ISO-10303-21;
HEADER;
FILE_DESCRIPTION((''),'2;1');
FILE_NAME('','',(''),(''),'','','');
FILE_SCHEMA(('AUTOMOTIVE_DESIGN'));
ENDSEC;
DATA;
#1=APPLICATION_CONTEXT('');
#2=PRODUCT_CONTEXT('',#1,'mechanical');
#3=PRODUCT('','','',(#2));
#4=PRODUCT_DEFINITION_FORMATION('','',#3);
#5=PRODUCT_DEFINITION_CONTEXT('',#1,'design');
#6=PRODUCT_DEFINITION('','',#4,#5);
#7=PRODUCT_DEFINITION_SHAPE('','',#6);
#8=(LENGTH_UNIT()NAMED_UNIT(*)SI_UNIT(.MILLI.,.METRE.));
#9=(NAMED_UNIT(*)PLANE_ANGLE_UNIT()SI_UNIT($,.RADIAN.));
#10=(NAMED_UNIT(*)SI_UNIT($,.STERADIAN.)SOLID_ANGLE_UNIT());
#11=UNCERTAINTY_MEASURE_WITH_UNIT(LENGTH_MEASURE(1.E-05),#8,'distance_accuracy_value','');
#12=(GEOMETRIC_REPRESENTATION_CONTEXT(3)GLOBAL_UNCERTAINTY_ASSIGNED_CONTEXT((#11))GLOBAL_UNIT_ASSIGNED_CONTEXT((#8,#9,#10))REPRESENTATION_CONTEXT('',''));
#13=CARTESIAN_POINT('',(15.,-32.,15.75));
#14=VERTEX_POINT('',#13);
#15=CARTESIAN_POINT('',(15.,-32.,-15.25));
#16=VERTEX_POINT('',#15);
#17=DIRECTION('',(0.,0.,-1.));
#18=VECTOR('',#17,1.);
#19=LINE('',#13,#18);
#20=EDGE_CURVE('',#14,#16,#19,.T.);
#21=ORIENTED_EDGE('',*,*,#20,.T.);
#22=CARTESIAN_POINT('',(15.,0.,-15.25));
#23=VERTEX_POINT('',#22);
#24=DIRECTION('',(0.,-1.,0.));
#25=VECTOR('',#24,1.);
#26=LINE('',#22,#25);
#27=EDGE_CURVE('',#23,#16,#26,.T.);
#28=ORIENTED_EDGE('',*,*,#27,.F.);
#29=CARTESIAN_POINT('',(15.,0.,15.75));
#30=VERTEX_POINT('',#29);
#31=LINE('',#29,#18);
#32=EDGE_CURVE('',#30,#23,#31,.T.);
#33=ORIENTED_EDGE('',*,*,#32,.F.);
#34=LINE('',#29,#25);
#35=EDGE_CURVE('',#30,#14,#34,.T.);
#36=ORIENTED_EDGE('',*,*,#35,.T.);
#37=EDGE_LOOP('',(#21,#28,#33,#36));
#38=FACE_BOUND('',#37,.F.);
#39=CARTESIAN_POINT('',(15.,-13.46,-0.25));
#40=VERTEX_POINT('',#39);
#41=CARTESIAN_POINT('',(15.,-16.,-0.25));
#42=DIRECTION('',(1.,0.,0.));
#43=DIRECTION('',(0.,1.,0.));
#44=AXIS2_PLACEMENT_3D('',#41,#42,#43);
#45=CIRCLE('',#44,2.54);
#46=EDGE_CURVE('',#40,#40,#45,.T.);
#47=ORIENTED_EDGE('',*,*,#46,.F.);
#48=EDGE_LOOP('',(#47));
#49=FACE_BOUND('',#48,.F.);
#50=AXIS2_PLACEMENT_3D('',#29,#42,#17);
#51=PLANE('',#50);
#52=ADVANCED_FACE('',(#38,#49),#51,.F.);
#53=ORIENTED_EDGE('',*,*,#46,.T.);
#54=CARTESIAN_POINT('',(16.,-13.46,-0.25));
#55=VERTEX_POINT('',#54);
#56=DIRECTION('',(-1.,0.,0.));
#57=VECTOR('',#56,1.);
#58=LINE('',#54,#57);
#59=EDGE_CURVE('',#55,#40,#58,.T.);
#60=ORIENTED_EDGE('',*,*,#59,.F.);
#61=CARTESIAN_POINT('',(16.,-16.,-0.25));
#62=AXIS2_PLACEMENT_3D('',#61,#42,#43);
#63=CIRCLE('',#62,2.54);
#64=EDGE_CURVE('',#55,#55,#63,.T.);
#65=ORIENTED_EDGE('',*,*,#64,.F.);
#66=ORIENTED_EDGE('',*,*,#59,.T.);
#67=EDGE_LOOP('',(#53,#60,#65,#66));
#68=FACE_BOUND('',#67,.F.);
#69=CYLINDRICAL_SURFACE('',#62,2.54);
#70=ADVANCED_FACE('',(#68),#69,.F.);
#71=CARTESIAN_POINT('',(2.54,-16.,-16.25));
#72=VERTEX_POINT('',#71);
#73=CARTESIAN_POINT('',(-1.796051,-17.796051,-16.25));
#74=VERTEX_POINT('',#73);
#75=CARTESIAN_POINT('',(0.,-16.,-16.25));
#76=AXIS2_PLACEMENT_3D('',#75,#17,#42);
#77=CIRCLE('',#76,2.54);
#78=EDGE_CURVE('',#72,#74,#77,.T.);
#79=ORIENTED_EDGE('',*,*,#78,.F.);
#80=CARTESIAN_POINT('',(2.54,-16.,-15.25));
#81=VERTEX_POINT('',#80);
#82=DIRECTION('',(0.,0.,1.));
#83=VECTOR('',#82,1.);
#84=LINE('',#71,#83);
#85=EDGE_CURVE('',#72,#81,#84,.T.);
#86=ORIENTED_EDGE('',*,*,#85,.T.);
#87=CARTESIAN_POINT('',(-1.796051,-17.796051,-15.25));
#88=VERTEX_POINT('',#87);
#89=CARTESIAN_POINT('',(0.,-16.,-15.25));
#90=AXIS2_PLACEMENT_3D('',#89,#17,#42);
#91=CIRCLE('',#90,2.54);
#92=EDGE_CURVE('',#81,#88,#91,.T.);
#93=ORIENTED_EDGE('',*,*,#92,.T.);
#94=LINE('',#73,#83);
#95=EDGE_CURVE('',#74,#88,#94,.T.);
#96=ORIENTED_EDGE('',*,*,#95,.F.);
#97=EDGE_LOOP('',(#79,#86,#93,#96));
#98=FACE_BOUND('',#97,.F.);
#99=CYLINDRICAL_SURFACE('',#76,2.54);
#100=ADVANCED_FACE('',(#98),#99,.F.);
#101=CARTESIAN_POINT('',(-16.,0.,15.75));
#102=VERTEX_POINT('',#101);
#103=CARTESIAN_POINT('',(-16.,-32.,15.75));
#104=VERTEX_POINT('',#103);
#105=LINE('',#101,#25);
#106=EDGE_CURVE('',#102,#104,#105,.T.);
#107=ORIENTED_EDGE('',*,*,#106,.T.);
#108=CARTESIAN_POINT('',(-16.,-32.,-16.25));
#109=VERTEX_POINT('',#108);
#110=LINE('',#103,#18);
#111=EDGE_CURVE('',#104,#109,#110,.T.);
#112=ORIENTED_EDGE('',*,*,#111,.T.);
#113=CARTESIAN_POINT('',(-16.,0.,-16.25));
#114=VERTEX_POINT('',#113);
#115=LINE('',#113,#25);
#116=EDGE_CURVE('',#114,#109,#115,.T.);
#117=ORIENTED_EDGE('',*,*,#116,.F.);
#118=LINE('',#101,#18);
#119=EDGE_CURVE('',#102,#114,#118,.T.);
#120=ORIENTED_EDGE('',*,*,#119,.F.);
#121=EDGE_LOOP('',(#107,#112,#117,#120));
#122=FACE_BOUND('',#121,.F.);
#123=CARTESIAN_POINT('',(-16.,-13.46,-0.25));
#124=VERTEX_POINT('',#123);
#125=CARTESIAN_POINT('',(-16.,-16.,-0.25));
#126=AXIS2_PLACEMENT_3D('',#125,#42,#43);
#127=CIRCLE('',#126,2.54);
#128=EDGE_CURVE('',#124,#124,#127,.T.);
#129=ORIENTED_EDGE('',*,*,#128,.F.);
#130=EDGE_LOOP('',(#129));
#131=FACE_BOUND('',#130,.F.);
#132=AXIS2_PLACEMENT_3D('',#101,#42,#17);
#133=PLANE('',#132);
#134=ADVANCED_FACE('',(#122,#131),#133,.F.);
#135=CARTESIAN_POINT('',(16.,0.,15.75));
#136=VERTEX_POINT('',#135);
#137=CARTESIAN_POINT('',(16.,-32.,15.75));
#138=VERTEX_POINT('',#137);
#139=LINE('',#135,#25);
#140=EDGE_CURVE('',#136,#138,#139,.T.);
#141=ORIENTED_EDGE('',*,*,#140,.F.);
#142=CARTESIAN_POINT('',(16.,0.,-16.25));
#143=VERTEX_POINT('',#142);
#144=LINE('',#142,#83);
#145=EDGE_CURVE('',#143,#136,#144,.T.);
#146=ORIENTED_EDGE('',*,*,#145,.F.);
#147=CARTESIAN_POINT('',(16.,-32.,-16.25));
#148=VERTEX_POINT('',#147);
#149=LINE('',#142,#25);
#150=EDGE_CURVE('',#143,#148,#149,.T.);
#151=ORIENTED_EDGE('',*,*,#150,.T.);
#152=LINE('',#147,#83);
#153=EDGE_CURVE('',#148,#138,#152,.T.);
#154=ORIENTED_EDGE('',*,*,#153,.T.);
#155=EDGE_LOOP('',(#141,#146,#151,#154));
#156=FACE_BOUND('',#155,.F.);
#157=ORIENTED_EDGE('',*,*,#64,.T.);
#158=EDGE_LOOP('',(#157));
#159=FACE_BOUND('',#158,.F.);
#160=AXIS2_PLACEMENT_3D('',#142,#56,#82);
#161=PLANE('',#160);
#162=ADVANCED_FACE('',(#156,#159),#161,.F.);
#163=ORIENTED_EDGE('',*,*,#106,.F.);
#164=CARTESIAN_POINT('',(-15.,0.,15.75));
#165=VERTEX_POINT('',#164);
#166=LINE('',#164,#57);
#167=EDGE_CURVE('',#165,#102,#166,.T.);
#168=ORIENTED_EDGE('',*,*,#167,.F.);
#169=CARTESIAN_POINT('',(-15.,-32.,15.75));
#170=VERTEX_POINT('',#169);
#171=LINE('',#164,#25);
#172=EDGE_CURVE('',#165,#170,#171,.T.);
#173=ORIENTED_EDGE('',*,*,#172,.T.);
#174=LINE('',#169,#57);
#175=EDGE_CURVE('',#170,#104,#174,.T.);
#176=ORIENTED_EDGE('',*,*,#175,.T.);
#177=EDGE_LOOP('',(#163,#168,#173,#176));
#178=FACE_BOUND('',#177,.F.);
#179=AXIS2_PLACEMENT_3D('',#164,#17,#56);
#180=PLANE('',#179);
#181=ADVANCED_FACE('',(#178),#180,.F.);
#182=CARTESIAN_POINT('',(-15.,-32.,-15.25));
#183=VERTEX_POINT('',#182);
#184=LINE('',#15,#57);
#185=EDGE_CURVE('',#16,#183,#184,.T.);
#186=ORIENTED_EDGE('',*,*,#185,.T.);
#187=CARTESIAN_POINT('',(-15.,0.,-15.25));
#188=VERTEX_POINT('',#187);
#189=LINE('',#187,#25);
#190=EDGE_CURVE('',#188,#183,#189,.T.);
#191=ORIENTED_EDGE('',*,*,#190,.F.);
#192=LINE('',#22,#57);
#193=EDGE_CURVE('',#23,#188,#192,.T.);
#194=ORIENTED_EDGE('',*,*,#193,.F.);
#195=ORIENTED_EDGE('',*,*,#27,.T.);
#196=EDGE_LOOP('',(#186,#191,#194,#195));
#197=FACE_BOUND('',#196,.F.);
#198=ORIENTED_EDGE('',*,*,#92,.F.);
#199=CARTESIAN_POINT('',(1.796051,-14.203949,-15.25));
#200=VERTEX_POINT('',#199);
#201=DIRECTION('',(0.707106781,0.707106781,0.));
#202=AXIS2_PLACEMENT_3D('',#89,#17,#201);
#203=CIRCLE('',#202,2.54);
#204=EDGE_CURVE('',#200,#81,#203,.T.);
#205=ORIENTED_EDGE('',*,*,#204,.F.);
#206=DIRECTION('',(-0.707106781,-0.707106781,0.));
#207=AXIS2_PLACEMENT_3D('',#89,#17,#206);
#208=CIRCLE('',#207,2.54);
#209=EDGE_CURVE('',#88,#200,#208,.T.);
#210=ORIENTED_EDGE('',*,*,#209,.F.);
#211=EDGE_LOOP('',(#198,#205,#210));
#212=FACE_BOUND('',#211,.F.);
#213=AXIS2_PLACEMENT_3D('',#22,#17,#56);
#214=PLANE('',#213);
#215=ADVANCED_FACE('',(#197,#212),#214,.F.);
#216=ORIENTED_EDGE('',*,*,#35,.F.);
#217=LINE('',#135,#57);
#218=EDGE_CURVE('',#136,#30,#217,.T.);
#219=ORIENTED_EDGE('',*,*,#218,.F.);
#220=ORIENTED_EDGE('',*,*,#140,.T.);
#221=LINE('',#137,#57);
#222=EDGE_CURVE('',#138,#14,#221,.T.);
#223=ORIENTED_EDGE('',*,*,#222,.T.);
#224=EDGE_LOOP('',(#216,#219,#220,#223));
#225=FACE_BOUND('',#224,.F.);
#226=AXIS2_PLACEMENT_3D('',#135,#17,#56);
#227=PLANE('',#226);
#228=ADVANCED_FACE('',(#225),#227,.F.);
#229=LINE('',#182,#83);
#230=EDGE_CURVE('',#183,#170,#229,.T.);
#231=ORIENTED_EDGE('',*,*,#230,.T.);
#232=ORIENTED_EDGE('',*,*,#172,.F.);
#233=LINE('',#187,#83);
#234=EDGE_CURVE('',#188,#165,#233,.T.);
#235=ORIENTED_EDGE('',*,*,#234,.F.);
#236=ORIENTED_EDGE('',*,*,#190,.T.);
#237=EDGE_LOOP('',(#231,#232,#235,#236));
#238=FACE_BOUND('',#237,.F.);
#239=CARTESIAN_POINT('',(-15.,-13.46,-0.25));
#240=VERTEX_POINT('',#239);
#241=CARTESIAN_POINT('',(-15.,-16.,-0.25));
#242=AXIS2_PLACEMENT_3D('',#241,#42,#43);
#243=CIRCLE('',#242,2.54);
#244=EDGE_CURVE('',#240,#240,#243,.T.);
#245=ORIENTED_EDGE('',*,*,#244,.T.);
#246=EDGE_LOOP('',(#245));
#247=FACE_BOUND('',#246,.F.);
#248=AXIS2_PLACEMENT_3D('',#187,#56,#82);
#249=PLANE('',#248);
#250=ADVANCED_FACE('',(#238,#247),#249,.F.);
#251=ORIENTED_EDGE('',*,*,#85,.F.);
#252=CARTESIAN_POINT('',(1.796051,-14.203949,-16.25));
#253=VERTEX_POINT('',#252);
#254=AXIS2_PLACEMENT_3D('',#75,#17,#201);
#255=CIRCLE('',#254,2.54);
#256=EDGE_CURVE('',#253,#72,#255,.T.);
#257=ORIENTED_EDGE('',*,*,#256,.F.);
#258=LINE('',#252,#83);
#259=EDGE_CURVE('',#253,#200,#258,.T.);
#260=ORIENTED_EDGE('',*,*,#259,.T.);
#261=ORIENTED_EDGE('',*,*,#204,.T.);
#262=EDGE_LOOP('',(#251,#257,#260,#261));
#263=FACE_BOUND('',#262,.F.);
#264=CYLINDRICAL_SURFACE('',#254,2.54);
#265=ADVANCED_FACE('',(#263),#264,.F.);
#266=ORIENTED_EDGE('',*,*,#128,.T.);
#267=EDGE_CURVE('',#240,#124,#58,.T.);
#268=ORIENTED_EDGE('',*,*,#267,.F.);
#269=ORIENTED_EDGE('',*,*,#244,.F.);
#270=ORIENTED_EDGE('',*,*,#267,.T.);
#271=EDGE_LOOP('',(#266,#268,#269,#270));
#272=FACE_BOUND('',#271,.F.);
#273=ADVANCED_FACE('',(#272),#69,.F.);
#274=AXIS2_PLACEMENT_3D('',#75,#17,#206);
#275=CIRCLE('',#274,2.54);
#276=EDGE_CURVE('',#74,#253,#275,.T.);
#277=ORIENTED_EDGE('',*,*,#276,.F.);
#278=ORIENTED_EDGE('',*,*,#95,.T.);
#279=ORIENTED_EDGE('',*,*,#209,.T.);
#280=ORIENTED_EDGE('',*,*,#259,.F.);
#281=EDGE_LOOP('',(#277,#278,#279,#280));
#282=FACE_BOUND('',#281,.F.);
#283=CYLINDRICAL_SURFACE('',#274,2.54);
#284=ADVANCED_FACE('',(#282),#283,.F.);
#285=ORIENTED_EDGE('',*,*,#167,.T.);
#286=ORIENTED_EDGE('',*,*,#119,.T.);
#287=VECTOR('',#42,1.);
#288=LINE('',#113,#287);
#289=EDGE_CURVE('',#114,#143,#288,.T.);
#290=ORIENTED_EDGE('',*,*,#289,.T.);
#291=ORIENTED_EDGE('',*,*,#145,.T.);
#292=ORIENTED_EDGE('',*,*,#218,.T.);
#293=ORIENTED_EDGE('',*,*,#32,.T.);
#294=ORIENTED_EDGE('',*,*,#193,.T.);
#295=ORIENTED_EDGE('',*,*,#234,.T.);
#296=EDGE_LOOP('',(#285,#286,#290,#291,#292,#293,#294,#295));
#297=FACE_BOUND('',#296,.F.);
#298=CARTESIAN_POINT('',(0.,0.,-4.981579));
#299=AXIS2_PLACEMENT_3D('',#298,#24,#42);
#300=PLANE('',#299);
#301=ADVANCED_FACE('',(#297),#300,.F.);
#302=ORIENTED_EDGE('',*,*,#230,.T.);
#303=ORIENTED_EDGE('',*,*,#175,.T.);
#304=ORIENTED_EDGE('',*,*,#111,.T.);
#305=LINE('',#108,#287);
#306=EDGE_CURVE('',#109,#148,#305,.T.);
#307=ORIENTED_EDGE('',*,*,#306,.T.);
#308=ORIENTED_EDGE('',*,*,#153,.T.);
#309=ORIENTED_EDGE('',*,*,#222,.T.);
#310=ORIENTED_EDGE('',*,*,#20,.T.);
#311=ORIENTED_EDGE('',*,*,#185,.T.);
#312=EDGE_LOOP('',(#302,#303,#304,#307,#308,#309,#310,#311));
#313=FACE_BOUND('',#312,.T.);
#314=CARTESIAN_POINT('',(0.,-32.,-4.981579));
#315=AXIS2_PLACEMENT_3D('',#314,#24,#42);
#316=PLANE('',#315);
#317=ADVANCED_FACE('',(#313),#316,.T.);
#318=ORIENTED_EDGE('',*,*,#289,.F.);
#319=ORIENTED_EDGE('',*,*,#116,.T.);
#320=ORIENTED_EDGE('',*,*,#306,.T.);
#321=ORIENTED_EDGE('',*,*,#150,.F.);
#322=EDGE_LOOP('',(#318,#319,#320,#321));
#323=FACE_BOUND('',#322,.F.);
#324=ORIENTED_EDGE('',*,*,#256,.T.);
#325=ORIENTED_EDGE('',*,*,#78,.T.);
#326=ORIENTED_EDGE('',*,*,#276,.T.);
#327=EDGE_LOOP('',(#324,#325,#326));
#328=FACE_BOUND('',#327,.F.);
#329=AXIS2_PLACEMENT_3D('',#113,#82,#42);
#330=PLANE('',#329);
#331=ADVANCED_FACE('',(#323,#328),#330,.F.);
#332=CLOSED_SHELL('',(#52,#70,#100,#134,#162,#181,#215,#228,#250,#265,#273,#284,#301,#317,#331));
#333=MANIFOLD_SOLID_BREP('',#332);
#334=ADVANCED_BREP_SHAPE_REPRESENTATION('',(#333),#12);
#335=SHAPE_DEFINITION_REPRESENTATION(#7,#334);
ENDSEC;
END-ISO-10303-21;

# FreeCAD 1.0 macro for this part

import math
import FreeCAD as App
import Part
import Sketcher

doc = App.newDocument("Part")
body = doc.addObject("PartDesign::Body", "Body")

# Sketch on XZ plane
sketch1 = body.newObject("Sketcher::SketchObject", "Sketch")
sketch1.AttachmentSupport = (doc.getObject("XZ_Plane"), [""])
sketch1.MapMode = "FlatFace"
sketch1.addGeometry([
    Part.LineSegment(App.Vector(-15, 15.8, 0), App.Vector(-16, 15.8, 0)),  # 0
    Part.LineSegment(App.Vector(-16, 15.8, 0), App.Vector(-16, -16.2, 0)),  # 1
    Part.LineSegment(App.Vector(-16, -16.2, 0), App.Vector(16, -16.2, 0)),  # 2
    Part.LineSegment(App.Vector(16, -16.2, 0), App.Vector(16, 15.8, 0)),  # 3
    Part.LineSegment(App.Vector(16, 15.8, 0), App.Vector(15, 15.8, 0)),  # 4
    Part.LineSegment(App.Vector(15, 15.8, 0), App.Vector(15, -15.2, 0)),  # 5
    Part.LineSegment(App.Vector(15, -15.2, 0), App.Vector(-15, -15.2, 0)),  # 6
    Part.LineSegment(App.Vector(-15, -15.2, 0), App.Vector(-15, 15.8, 0)),  # 7
], False)
sketch1.addConstraint([
    Sketcher.Constraint("Coincident", 0, 2, 1, 1),
    Sketcher.Constraint("Coincident", 1, 2, 2, 1),
    Sketcher.Constraint("Coincident", 2, 2, 3, 1),
    Sketcher.Constraint("Coincident", 3, 2, 4, 1),
    Sketcher.Constraint("Coincident", 4, 2, 5, 1),
    Sketcher.Constraint("Coincident", 5, 2, 6, 1),
    Sketcher.Constraint("Coincident", 6, 2, 7, 1),
    Sketcher.Constraint("Coincident", 7, 2, 0, 1),
    Sketcher.Constraint("Horizontal", 0),
    Sketcher.Constraint("Vertical", 1),
    Sketcher.Constraint("Horizontal", 2),
    Sketcher.Constraint("Vertical", 3),
    Sketcher.Constraint("Horizontal", 4),
    Sketcher.Constraint("Vertical", 5),
    Sketcher.Constraint("Horizontal", 6),
    Sketcher.Constraint("Vertical", 7),
    Sketcher.Constraint("Symmetric", 0, 2, 3, 2, -2),
    Sketcher.Constraint("Equal", 0, 4),
    Sketcher.Constraint("Equal", 2, 1),
    Sketcher.Constraint("DistanceX", 0, 2, 0, 1, 1.0),
    Sketcher.Constraint("DistanceX", 2, 1, 2, 2, 32.0),
    Sketcher.Constraint("DistanceY", 5, 2, 5, 1, 31.0),
    Sketcher.Constraint("DistanceY", -1, 1, 0, 2, 15.75),
])
pad1 = body.newObject("PartDesign::Pad", "Pad")
pad1.Profile = sketch1
pad1.Length = 32

# Sketch on YZ plane
sketch2 = body.newObject("Sketcher::SketchObject", "Sketch001")
sketch2.AttachmentSupport = (doc.getObject("YZ_Plane"), [""])
sketch2.MapMode = "FlatFace"
sketch2.AttachmentOffset = App.Placement(App.Vector(0, 0, 16), App.Rotation())
sketch2.addGeometry(Part.Circle(App.Vector(-16, -0.2, 0), App.Vector(0, 0, 1), 2.5), False)
sketch2.addConstraint([
    Sketcher.Constraint("Diameter", 0, 5.08),
    Sketcher.Constraint("DistanceX", 0, 3, -1, 1, 16.0),
    Sketcher.Constraint("DistanceY", 0, 3, -1, 1, 0.25),
])
pocket1 = body.newObject("PartDesign::Pocket", "Pocket")
pocket1.Profile = sketch2
pocket1.Length = 228.6

# Sketch on XY plane
sketch3 = body.newObject("Sketcher::SketchObject", "Sketch002")
sketch3.AttachmentSupport = (doc.getObject("XY_Plane"), [""])
sketch3.MapMode = "FlatFace"
sketch3.AttachmentOffset = App.Placement(App.Vector(0, 0, -16.25), App.Rotation())
sketch3.addGeometry([
    Part.ArcOfCircle(Part.Circle(App.Vector(0, -16, 0), App.Vector(0, 0, 1), 2.5), math.radians(45), math.radians(225)),
    Part.ArcOfCircle(Part.Circle(App.Vector(0, -16, 0), App.Vector(0, 0, 1), 2.5), math.radians(0), math.radians(45)),
    Part.ArcOfCircle(Part.Circle(App.Vector(0, -16, 0), App.Vector(0, 0, 1), 2.5), math.radians(-135), math.radians(0)),
], False)
sketch3.addConstraint([
    Sketcher.Constraint("Tangent", 0, 1, 1, 2),
    Sketcher.Constraint("Tangent", 1, 1, 2, 2),
    Sketcher.Constraint("Tangent", 2, 1, 0, 2),
    Sketcher.Constraint("PointOnObject", 0, 3, -2),
    Sketcher.Constraint("Horizontal", 2, 3, 1, 1),
    Sketcher.Constraint("Radius", 0, 2.54),
    Sketcher.Constraint("DistanceY", 0, 3, -1, 1, 16.0),
    Sketcher.Constraint("DistanceX", -1, 1, 0, 1, 1.796051),
    Sketcher.Constraint("DistanceX", 2, 1, -1, 1, 1.796051),
])
pocket2 = body.newObject("PartDesign::Pocket", "Pocket001")
pocket2.Profile = sketch3
pocket2.Length = 76.2
pocket2.Reversed = True

doc.recompute()
